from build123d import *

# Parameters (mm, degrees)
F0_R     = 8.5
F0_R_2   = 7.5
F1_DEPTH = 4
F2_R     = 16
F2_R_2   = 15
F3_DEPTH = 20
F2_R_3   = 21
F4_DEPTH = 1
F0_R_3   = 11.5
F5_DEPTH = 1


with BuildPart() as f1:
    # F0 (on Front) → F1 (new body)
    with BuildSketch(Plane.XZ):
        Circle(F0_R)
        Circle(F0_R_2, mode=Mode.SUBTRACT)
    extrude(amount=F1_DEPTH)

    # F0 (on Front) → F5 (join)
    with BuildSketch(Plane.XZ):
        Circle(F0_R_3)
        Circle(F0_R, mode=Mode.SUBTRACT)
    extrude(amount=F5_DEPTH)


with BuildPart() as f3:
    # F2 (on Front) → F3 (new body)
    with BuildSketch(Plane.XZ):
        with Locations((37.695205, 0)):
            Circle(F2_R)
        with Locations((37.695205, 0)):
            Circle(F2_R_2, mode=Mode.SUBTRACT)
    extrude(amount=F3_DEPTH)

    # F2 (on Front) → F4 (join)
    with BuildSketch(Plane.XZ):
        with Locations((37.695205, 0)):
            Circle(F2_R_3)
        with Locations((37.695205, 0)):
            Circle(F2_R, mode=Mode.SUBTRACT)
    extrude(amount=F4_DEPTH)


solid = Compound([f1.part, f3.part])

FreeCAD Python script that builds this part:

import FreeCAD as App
import Part
import Sketcher
Q = App.Units.Quantity

doc = App.newDocument("Part")
params = doc.addObject("Spreadsheet::Sheet", "Params")
for row, (alias, value) in enumerate([
    ("sketch1_diameter", "17 mm"),
    ("sketch1_diameter2", "15 mm"),
    ("pad1_length", "4 mm"),
    ("sketch2_diameter", "23 mm"),
    ("sketch2_diameter2", "17 mm"),
    ("pad2_length", "1 mm"),
    ("sketch3_diameter", "32 mm"),
    ("sketch3_diameter2", "30 mm"),
    ("pad3_length", "20 mm"),
    ("sketch4_diameter", "42 mm"),
    ("sketch4_diameter2", "32 mm"),
    ("pad4_length", "1 mm"),
], start=1):
    params.set(f"A{row}", alias)
    params.set(f"B{row}", "=" + value)
    params.setAlias(f"B{row}", alias)

body = doc.addObject("PartDesign::Body", "Body")

# Sketch on XZ plane
sketch1 = body.newObject("Sketcher::SketchObject", "Sketch")
sketch1.AttachmentSupport = (doc.getObject("XZ_Plane"), [""])
sketch1.MapMode = "FlatFace"
sketch1.addGeometry([
    Part.Circle(App.Vector(0, 0, 0), App.Vector(0, 0, 1), 8),
    Part.Circle(App.Vector(0, 0, 0), App.Vector(0, 0, 1), 8),
], False)
sketch1.addConstraint([
    Sketcher.Constraint("Coincident", 0, 3, -1, 1),
    Sketcher.Constraint("Coincident", 1, 3, -1, 1),
    Sketcher.Constraint("Diameter", 0, Q("17 mm")),
    Sketcher.Constraint("Diameter", 1, Q("15 mm")),
])
sketch1.setExpression("Constraints[2]", "Params.sketch1_diameter")
sketch1.setExpression("Constraints[3]", "Params.sketch1_diameter2")
pad1 = body.newObject("PartDesign::Pad", "Pad")
pad1.Profile = sketch1
pad1.setExpression("Length", "Params.pad1_length")

# Sketch on XZ plane
sketch2 = body.newObject("Sketcher::SketchObject", "Sketch001")
sketch2.AttachmentSupport = (doc.getObject("XZ_Plane"), [""])
sketch2.MapMode = "FlatFace"
sketch2.addGeometry([
    Part.Circle(App.Vector(0, 0, 0), App.Vector(0, 0, 1), 12),
    Part.Circle(App.Vector(0, 0, 0), App.Vector(0, 0, 1), 8),
], False)
sketch2.addConstraint([
    Sketcher.Constraint("Coincident", 0, 3, -1, 1),
    Sketcher.Constraint("Coincident", 1, 3, -1, 1),
    Sketcher.Constraint("Diameter", 0, Q("23 mm")),
    Sketcher.Constraint("Diameter", 1, Q("17 mm")),
])
sketch2.setExpression("Constraints[2]", "Params.sketch2_diameter")
sketch2.setExpression("Constraints[3]", "Params.sketch2_diameter2")
pad2 = body.newObject("PartDesign::Pad", "Pad001")
pad2.Profile = sketch2
pad2.setExpression("Length", "Params.pad2_length")
body2 = doc.addObject("PartDesign::Body", "Body001")

# Sketch on XZ plane
sketch3 = body2.newObject("Sketcher::SketchObject", "Sketch002")
sketch3.AttachmentSupport = (doc.getObject("XZ_Plane001"), [""])
sketch3.MapMode = "FlatFace"
sketch3.addGeometry([
    Part.Circle(App.Vector(38, 0, 0), App.Vector(0, 0, 1), 16),
    Part.Circle(App.Vector(38, 0, 0), App.Vector(0, 0, 1), 15),
], False)
sketch3.addConstraint([
    Sketcher.Constraint("Coincident", 1, 3, 0, 3),
    Sketcher.Constraint("PointOnObject", 0, 3, -1),
    Sketcher.Constraint("Diameter", 0, Q("32 mm")),
    Sketcher.Constraint("Diameter", 1, Q("30 mm")),
    Sketcher.Constraint("DistanceX", -1, 1, 0, 3, Q("37.695205 mm")),
])
sketch3.setExpression("Constraints[2]", "Params.sketch3_diameter")
sketch3.setExpression("Constraints[3]", "Params.sketch3_diameter2")
pad3 = body2.newObject("PartDesign::Pad", "Pad002")
pad3.Profile = sketch3
pad3.setExpression("Length", "Params.pad3_length")

# Sketch on XZ plane
sketch4 = body2.newObject("Sketcher::SketchObject", "Sketch003")
sketch4.AttachmentSupport = (doc.getObject("XZ_Plane001"), [""])
sketch4.MapMode = "FlatFace"
sketch4.addGeometry([
    Part.Circle(App.Vector(38, 0, 0), App.Vector(0, 0, 1), 21),
    Part.Circle(App.Vector(38, 0, 0), App.Vector(0, 0, 1), 16),
], False)
sketch4.addConstraint([
    Sketcher.Constraint("Coincident", 1, 3, 0, 3),
    Sketcher.Constraint("PointOnObject", 0, 3, -1),
    Sketcher.Constraint("Diameter", 0, Q("42 mm")),
    Sketcher.Constraint("Diameter", 1, Q("32 mm")),
    Sketcher.Constraint("DistanceX", -1, 1, 0, 3, Q("37.695205 mm")),
])
sketch4.setExpression("Constraints[2]", "Params.sketch4_diameter")
sketch4.setExpression("Constraints[3]", "Params.sketch4_diameter2")
pad4 = body2.newObject("PartDesign::Pad", "Pad003")
pad4.Profile = sketch4
pad4.setExpression("Length", "Params.pad4_length")

doc.recompute()
